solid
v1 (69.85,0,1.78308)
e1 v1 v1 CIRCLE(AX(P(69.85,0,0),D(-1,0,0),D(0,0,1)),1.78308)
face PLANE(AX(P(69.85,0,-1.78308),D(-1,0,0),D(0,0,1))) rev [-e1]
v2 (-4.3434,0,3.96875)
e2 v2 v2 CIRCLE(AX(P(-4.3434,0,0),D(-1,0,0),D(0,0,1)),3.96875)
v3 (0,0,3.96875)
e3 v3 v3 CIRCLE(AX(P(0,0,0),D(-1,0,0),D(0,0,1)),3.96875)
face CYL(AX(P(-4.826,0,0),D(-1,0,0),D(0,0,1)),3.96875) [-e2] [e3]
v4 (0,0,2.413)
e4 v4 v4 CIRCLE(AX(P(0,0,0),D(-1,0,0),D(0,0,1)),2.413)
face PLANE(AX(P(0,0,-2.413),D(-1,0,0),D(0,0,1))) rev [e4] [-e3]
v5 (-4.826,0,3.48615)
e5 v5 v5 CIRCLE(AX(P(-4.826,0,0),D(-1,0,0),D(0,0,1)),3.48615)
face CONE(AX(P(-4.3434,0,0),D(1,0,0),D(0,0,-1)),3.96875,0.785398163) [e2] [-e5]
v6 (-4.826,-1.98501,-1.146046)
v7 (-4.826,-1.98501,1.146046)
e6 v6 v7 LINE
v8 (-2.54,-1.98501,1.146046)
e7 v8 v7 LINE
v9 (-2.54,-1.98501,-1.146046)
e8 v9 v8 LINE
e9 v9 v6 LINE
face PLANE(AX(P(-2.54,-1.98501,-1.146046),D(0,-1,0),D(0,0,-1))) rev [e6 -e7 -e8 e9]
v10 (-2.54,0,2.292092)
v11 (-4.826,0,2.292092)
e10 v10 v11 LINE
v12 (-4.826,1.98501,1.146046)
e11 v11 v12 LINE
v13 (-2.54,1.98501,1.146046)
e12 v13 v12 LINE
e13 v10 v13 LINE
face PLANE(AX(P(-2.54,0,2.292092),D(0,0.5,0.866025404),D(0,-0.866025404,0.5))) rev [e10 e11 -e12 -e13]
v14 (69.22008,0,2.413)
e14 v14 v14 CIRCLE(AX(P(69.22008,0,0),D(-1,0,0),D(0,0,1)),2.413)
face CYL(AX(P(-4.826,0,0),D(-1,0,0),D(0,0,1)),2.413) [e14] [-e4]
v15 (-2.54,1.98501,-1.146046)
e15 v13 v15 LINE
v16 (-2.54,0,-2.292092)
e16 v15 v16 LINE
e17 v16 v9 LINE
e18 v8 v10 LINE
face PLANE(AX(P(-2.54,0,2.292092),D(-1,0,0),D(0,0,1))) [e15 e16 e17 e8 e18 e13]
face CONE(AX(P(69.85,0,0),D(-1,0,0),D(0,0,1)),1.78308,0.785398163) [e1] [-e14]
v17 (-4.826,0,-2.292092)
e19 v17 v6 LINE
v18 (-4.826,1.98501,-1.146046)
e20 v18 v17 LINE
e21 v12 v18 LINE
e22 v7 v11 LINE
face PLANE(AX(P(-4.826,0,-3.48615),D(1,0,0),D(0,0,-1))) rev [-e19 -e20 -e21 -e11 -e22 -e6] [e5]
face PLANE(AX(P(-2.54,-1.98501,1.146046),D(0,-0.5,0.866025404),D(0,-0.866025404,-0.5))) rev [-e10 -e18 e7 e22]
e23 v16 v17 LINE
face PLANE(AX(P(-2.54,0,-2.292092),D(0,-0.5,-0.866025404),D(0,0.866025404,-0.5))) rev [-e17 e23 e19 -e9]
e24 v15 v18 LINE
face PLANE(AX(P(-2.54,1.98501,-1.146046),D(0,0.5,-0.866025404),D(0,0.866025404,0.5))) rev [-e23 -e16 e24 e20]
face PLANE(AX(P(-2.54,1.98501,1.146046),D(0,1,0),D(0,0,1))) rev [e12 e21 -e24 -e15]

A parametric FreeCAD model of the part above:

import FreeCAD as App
import Part
import Sketcher
Q = App.Units.Quantity

doc = App.newDocument("Part")
body = doc.addObject("PartDesign::Body", "Body")

sketch1 = body.newObject("Sketcher::SketchObject", "Sketch")
sketch1.AttachmentSupport = (doc.getObject("XZ_Plane"), [""])
sketch1.MapMode = "FlatFace"
sketch1.addGeometry([
    Part.LineSegment(App.Vector(0, -2.413, 0), App.Vector(0, -3.96875, 0)),
    Part.LineSegment(App.Vector(0, -3.96875, 0), App.Vector(-4.3434, -3.96875, 0)),
    Part.LineSegment(App.Vector(-4.3434, -3.96875, 0), App.Vector(-4.826, -3.48615, 0)),
    Part.LineSegment(App.Vector(-4.826, -3.48615, 0), App.Vector(-4.826, 0, 0)),
    Part.LineSegment(App.Vector(-4.826, 0, 0), App.Vector(69.85, 0, 0)),
    Part.LineSegment(App.Vector(69.85, 0, 0), App.Vector(69.85, -1.78308, 0)),
    Part.LineSegment(App.Vector(69.85, -1.78308, 0), App.Vector(69.22008, -2.413, 0)),
    Part.LineSegment(App.Vector(69.22008, -2.413, 0), App.Vector(0, -2.413, 0)),
], False)
sketch1.addConstraint([
    Sketcher.Constraint("Coincident", 0, 2, 1, 1),
    Sketcher.Constraint("Coincident", 1, 2, 2, 1),
    Sketcher.Constraint("Coincident", 2, 2, 3, 1),
    Sketcher.Constraint("Coincident", 3, 2, 4, 1),
    Sketcher.Constraint("Coincident", 4, 2, 5, 1),
    Sketcher.Constraint("Coincident", 5, 2, 6, 1),
    Sketcher.Constraint("Coincident", 6, 2, 7, 1),
    Sketcher.Constraint("Coincident", 7, 2, 0, 1),
    Sketcher.Constraint("Vertical", 0),
    Sketcher.Constraint("Horizontal", 1),
    Sketcher.Constraint("Vertical", 3),
    Sketcher.Constraint("Horizontal", 4),
    Sketcher.Constraint("Vertical", 5),
    Sketcher.Constraint("Horizontal", 7),
    Sketcher.Constraint("PointOnObject", 0, 2, -2),
    Sketcher.Constraint("PointOnObject", 3, 2, -1),
    Sketcher.Constraint("Perpendicular", 2, 6),
    Sketcher.Constraint("Angle", 2, Q("135 deg")),
    Sketcher.Constraint("DistanceX", 4, 1, 4, 2, Q("2.94 in")),
    Sketcher.Constraint("DistanceX", 1, 2, 1, 1, Q("0.171 in")),
    Sketcher.Constraint("DistanceX", 2, 2, -1, 1, Q("0.19 in")),
    Sketcher.Constraint("DistanceX", 7, 2, 7, 1, Q("2.7252 in")),
    Sketcher.Constraint("DistanceY", 5, 2, 5, 1, Q("0.0702 in")),
    Sketcher.Constraint("DistanceY", 0, 2, -1, 1, Q("0.15625 in")),
])
revolution = body.newObject("PartDesign::Revolution", "Revolution")
revolution.Profile = sketch1
revolution.ReferenceAxis = (sketch1, ["H_Axis"])
revolution.Angle = 360

sketch2 = body.newObject("Sketcher::SketchObject", "Sketch001")
sketch2.AttachmentSupport = (doc.getObject("YZ_Plane"), [""])
sketch2.MapMode = "FlatFace"
sketch2.AttachmentOffset = App.Placement(App.Vector(0, 0, -0.19 * 25.4), App.Rotation())
sketch2.addGeometry([
    Part.LineSegment(App.Vector(0, 2.292092, 0), App.Vector(1.98501, 1.146046, 0)),
    Part.LineSegment(App.Vector(1.98501, 1.146046, 0), App.Vector(1.98501, -1.146046, 0)),
    Part.LineSegment(App.Vector(1.98501, -1.146046, 0), App.Vector(0, -2.292092, 0)),
    Part.LineSegment(App.Vector(0, -2.292092, 0), App.Vector(-1.98501, -1.146046, 0)),
    Part.LineSegment(App.Vector(-1.98501, -1.146046, 0), App.Vector(-1.98501, 1.146046, 0)),
    Part.LineSegment(App.Vector(-1.98501, 1.146046, 0), App.Vector(0, 2.292092, 0)),
], False)
sketch2.addConstraint([
    Sketcher.Constraint("Coincident", 0, 2, 1, 1),
    Sketcher.Constraint("Coincident", 1, 2, 2, 1),
    Sketcher.Constraint("Coincident", 2, 2, 3, 1),
    Sketcher.Constraint("Coincident", 3, 2, 4, 1),
    Sketcher.Constraint("Coincident", 4, 2, 5, 1),
    Sketcher.Constraint("Coincident", 5, 2, 0, 1),
    Sketcher.Constraint("Vertical", 1),
    Sketcher.Constraint("Vertical", 4),
    Sketcher.Constraint("Symmetric", 0, 2, 3, 2, -1, 1),
    Sketcher.Constraint("Symmetric", 2, 2, 5, 2, -1, 1),
    Sketcher.Constraint("PointOnObject", 2, 2, -2),
    Sketcher.Constraint("Parallel", 2, 5),
    Sketcher.Constraint("Horizontal", 1, 2, 3, 2),
    Sketcher.Constraint("Angle", 0, Q("-30 deg")),
    Sketcher.Constraint("DistanceX", 3, 2, 1, 2, Q("0.1563 in")),
    Sketcher.Constraint("DistanceY", 1, 2, 1, 1, Q("2.292092 mm")),
])
pocket1 = body.newObject("PartDesign::Pocket", "Pocket")
pocket1.Profile = sketch2
pocket1.Length = Q("0.09 in")
pocket1.Reversed = True

doc.recompute()
